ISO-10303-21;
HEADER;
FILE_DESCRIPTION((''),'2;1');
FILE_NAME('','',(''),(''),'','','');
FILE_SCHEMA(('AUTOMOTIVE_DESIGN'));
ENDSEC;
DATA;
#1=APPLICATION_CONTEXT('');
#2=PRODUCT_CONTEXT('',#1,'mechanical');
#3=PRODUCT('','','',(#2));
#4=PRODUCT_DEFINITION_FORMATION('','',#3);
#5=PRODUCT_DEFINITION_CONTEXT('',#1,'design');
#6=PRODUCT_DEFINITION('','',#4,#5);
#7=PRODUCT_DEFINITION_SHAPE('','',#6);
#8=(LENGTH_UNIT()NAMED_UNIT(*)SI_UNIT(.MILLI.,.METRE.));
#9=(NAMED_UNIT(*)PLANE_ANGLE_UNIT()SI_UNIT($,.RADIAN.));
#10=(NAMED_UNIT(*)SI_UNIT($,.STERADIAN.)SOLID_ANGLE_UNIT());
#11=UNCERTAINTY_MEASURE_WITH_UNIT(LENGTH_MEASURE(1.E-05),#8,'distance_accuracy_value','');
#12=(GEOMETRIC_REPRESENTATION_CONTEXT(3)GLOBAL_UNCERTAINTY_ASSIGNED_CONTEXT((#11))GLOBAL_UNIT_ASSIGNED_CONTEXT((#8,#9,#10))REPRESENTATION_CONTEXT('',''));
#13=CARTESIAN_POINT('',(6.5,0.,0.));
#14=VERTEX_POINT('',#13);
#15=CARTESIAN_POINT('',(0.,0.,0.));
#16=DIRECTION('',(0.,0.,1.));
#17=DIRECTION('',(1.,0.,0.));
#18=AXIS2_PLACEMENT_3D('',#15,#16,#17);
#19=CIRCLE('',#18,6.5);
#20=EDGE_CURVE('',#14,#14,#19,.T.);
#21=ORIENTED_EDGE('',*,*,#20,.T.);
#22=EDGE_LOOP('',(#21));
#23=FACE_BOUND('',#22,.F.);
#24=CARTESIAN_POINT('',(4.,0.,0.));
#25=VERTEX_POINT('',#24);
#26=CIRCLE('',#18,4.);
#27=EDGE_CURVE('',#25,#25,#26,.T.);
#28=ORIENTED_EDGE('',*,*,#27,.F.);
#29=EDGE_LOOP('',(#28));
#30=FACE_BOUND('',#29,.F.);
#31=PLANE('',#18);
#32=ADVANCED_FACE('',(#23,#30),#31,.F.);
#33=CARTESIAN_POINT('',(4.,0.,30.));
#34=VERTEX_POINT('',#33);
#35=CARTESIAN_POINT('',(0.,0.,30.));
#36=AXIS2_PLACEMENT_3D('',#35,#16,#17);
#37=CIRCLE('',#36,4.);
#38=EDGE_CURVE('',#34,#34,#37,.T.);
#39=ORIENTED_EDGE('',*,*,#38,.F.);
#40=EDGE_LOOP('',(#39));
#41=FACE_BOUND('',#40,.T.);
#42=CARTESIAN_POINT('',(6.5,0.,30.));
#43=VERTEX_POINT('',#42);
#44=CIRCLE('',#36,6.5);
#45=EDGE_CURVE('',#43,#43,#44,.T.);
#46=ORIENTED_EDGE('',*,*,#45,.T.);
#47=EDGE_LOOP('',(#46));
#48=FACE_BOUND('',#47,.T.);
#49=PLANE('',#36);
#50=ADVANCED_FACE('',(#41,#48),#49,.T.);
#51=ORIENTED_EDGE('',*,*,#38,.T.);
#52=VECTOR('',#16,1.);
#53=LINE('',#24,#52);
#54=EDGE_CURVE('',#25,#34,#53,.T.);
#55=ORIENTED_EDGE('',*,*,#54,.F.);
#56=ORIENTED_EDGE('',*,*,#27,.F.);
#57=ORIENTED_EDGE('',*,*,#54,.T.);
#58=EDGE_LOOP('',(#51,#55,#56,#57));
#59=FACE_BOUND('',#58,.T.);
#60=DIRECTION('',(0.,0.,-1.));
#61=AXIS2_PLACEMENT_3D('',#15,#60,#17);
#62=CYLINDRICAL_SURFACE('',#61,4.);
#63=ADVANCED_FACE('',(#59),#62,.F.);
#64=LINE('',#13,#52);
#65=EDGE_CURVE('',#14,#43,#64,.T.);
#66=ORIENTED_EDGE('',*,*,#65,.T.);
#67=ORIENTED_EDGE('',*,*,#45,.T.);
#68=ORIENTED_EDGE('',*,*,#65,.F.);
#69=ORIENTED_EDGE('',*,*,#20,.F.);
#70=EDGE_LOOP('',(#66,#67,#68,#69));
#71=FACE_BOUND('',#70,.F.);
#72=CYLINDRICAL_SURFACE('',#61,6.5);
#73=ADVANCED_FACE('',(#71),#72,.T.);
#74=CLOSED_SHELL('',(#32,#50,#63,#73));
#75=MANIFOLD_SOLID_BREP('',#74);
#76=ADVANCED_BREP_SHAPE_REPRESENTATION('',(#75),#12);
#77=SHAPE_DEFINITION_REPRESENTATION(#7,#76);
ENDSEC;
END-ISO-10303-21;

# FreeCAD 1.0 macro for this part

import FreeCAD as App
import Part
import Sketcher
Q = App.Units.Quantity

doc = App.newDocument("Part")
body = doc.addObject("PartDesign::Body", "Body")

# Sketch on XY plane
sketch1 = doc.addObject("Sketcher::SketchObject", "Sketch")
body.addObject(sketch1)
sketch1.AttachmentSupport = (doc.XY_Plane, [""])
sketch1.MapMode = "FlatFace"
sketch1.addGeometry(Part.Circle(App.Vector(0, 0, 0), App.Vector(0, 0, 1), 6.5), False)
sketch1.addGeometry(Part.Circle(App.Vector(0, 0, 0), App.Vector(0, 0, 1), 4), False)
sketch1.addConstraint(Sketcher.Constraint("Coincident", 0, 3, -1, 1))
sketch1.addConstraint(Sketcher.Constraint("Coincident", 1, 3, -1, 1))
sketch1.addConstraint(Sketcher.Constraint("Diameter", 0, Q("13 mm")))
sketch1.addConstraint(Sketcher.Constraint("Diameter", 1, Q("8 mm")))
pad1 = doc.addObject("PartDesign::Pad", "Pad")
body.addObject(pad1)
pad1.Profile = sketch1
pad1.Length = 30

doc.recompute()
